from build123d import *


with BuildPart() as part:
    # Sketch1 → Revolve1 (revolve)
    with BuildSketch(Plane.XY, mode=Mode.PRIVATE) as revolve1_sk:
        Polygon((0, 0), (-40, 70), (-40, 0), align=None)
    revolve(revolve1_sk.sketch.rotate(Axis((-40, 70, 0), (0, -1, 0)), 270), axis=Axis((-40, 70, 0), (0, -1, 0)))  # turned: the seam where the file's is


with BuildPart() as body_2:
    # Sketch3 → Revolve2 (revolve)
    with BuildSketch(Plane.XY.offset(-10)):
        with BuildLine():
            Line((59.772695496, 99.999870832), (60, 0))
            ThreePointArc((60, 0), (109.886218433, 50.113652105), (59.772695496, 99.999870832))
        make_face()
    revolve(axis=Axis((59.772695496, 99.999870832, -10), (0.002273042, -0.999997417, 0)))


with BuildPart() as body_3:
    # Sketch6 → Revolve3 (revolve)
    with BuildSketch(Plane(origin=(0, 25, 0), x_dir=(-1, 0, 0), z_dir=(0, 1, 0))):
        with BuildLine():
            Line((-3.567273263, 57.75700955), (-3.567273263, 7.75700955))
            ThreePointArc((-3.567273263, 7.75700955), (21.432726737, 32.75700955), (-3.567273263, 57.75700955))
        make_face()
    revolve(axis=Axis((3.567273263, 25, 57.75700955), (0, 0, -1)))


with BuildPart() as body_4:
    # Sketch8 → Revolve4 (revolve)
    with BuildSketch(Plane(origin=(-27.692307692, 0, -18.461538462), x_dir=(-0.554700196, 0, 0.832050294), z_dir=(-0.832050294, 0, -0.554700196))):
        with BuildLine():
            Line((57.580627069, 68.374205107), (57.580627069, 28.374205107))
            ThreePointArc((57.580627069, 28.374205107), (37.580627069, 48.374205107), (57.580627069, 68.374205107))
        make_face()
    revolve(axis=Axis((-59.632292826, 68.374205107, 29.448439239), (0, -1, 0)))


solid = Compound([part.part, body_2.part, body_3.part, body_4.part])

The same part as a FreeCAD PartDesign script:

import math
import FreeCAD as App
import Part
import Sketcher

V = App.Vector
Q = App.Units.Quantity

doc = App.newDocument("Part")
body = doc.addObject("PartDesign::Body", "Body")

sketch1 = body.newObject("Sketcher::SketchObject", "Sketch")
sketch1.AttachmentSupport = (doc.getObject("XY_Plane"), [""])
sketch1.MapMode = "FlatFace"
sketch1.addGeometry(Part.LineSegment(V(0, 0, 0), V(-40, 70, 0)), False)
sketch1.addGeometry(Part.LineSegment(V(-40, 70, 0), V(-40, 0, 0)), False)
sketch1.addGeometry(Part.LineSegment(V(-40, 0, 0), V(0, 0, 0)), False)
sketch1.addGeometry(Part.LineSegment(V(-40, 70, 0), V(-40, 0, 0)), True)
sketch1.addConstraint(Sketcher.Constraint("Coincident", 0, 2, 1, 1))
sketch1.addConstraint(Sketcher.Constraint("Coincident", 1, 2, 2, 1))
sketch1.addConstraint(Sketcher.Constraint("Coincident", 2, 2, 0, 1))
sketch1.addConstraint(Sketcher.Constraint("Vertical", 1))
sketch1.addConstraint(Sketcher.Constraint("Horizontal", 2))
sketch1.addConstraint(Sketcher.Constraint("Vertical", 3))
sketch1.addConstraint(Sketcher.Constraint("Coincident", 2, 2, -1, 1))
sketch1.addConstraint(Sketcher.Constraint("Coincident", 3, 1, 0, 2))
sketch1.addConstraint(Sketcher.Constraint("PointOnObject", 3, 2, -1))
sketch1.addConstraint(Sketcher.Constraint("DistanceX", 2, 1, 2, 2, Q("40 mm")))
sketch1.addConstraint(Sketcher.Constraint("DistanceY", 1, 2, 1, 1, Q("70 mm")))
revolution = body.newObject("PartDesign::Revolution", "Revolution")
revolution.Profile = sketch1
revolution.ReferenceAxis = (sketch1, ["Axis0"])
revolution.Angle = 360
body2 = doc.addObject("PartDesign::Body", "Body001")

sketch2 = body2.newObject("Sketcher::SketchObject", "Sketch001")
sketch2.AttachmentSupport = (doc.getObject("XY_Plane001"), [""])
sketch2.MapMode = "FlatFace"
sketch2.AttachmentOffset = App.Placement(V(0, 0, -10), App.Rotation())
sketch2.addGeometry(Part.LineSegment(V(60, 100, 0), V(60, 0, 0)), False)
sketch2.addGeometry(Part.ArcOfCircle(Part.Circle(V(60, 50, 0), V(0, 0, 1), 50), math.radians(-90), math.radians(90)), False)
sketch2.addGeometry(Part.LineSegment(V(60, 100, 0), V(60, 0, 0)), True)
sketch2.addConstraint(Sketcher.Constraint("Coincident", 0, 1, 1, 2))
sketch2.addConstraint(Sketcher.Constraint("Coincident", 1, 1, 0, 2))
sketch2.addConstraint(Sketcher.Constraint("Coincident", 2, 1, 0, 1))
sketch2.addConstraint(Sketcher.Constraint("Coincident", 2, 2, 1, 1))
sketch2.addConstraint(Sketcher.Constraint("PointOnObject", 1, 1, -1))
sketch2.addConstraint(Sketcher.Constraint("DistanceX", -1, 1, 1, 1, Q("60 mm")))
sketch2.addConstraint(Sketcher.Constraint("Radius", 1, Q("50.000065 mm")))
sketch2.addConstraint(Sketcher.Constraint("DistanceX", -1, 1, 1, 3, Q("59.886283 mm")))
sketch2.addConstraint(Sketcher.Constraint("DistanceX", -1, 1, 0, 1, Q("59.772695 mm")))
revolution2 = body2.newObject("PartDesign::Revolution", "Revolution001")
revolution2.Profile = sketch2
revolution2.ReferenceAxis = (sketch2, ["Axis0"])
revolution2.Angle = 360
body3 = doc.addObject("PartDesign::Body", "Body002")

sketch3 = body3.newObject("Sketcher::SketchObject", "Sketch002")
sketch3.AttachmentSupport = (doc.getObject("XZ_Plane002"), [""])
sketch3.MapMode = "FlatFace"
sketch3.AttachmentOffset = App.Placement(V(0, 0, -25), App.Rotation())
sketch3.addGeometry(Part.LineSegment(V(4, 58, 0), V(4, 8, 0)), False)
sketch3.addGeometry(Part.ArcOfCircle(Part.Circle(V(4, 33, 0), V(0, 0, 1), 25), math.radians(90), math.radians(270)), False)
sketch3.addGeometry(Part.LineSegment(V(4, 58, 0), V(4, 8, 0)), True)
sketch3.addConstraint(Sketcher.Constraint("Coincident", 0, 1, 1, 1))
sketch3.addConstraint(Sketcher.Constraint("Coincident", 1, 2, 0, 2))
sketch3.addConstraint(Sketcher.Constraint("Vertical", 0))
sketch3.addConstraint(Sketcher.Constraint("Vertical", 2))
sketch3.addConstraint(Sketcher.Constraint("Coincident", 2, 1, 0, 1))
sketch3.addConstraint(Sketcher.Constraint("Vertical", 1, 3, 0, 1))
sketch3.addConstraint(Sketcher.Constraint("Equal", 0, 2))
sketch3.addConstraint(Sketcher.Constraint("Radius", 1, Q("25 mm")))
sketch3.addConstraint(Sketcher.Constraint("DistanceY", -1, 1, 1, 3, Q("32.75701 mm")))
sketch3.addConstraint(Sketcher.Constraint("DistanceX", -1, 1, 1, 3, Q("3.567273 mm")))
revolution3 = body3.newObject("PartDesign::Revolution", "Revolution002")
revolution3.Profile = sketch3
revolution3.ReferenceAxis = (sketch3, ["Axis0"])
revolution3.Angle = 360
body4 = doc.addObject("PartDesign::Body", "Body003")

sketch4 = body4.newObject("Sketcher::SketchObject", "Sketch003")
sketch4.Placement = App.Placement(V(-27.692308, 0, -18.461538), App.Rotation(V(-0.554700196, 0, 0.832050294), V(0, 0.999999999, 0), V(-0.832050294, 0, -0.554700196), "ZXY"))
sketch4.addGeometry(Part.LineSegment(V(58, 28, 0), V(58, 68, 0)), False)
sketch4.addGeometry(Part.ArcOfCircle(Part.Circle(V(58, 48, 0), V(0, 0, 1), 20), math.radians(90), math.radians(270)), False)
sketch4.addGeometry(Part.LineSegment(V(58, 68, 0), V(58, 28, 0)), True)
sketch4.addConstraint(Sketcher.Constraint("Coincident", 0, 1, 1, 2))
sketch4.addConstraint(Sketcher.Constraint("Coincident", 1, 1, 0, 2))
sketch4.addConstraint(Sketcher.Constraint("Vertical", 0))
sketch4.addConstraint(Sketcher.Constraint("Vertical", 2))
sketch4.addConstraint(Sketcher.Constraint("Coincident", 2, 1, 1, 1))
sketch4.addConstraint(Sketcher.Constraint("Vertical", 1, 3, 0, 1))
sketch4.addConstraint(Sketcher.Constraint("Equal", 0, 2))
sketch4.addConstraint(Sketcher.Constraint("Radius", 1, Q("20 mm")))
sketch4.addConstraint(Sketcher.Constraint("DistanceX", -1, 1, 1, 3, Q("57.580627 mm")))
sketch4.addConstraint(Sketcher.Constraint("DistanceY", -1, 1, 1, 3, Q("48.374205 mm")))
revolution4 = body4.newObject("PartDesign::Revolution", "Revolution003")
revolution4.Profile = sketch4
revolution4.ReferenceAxis = (sketch4, ["Axis0"])
revolution4.Angle = 360

doc.recompute()
